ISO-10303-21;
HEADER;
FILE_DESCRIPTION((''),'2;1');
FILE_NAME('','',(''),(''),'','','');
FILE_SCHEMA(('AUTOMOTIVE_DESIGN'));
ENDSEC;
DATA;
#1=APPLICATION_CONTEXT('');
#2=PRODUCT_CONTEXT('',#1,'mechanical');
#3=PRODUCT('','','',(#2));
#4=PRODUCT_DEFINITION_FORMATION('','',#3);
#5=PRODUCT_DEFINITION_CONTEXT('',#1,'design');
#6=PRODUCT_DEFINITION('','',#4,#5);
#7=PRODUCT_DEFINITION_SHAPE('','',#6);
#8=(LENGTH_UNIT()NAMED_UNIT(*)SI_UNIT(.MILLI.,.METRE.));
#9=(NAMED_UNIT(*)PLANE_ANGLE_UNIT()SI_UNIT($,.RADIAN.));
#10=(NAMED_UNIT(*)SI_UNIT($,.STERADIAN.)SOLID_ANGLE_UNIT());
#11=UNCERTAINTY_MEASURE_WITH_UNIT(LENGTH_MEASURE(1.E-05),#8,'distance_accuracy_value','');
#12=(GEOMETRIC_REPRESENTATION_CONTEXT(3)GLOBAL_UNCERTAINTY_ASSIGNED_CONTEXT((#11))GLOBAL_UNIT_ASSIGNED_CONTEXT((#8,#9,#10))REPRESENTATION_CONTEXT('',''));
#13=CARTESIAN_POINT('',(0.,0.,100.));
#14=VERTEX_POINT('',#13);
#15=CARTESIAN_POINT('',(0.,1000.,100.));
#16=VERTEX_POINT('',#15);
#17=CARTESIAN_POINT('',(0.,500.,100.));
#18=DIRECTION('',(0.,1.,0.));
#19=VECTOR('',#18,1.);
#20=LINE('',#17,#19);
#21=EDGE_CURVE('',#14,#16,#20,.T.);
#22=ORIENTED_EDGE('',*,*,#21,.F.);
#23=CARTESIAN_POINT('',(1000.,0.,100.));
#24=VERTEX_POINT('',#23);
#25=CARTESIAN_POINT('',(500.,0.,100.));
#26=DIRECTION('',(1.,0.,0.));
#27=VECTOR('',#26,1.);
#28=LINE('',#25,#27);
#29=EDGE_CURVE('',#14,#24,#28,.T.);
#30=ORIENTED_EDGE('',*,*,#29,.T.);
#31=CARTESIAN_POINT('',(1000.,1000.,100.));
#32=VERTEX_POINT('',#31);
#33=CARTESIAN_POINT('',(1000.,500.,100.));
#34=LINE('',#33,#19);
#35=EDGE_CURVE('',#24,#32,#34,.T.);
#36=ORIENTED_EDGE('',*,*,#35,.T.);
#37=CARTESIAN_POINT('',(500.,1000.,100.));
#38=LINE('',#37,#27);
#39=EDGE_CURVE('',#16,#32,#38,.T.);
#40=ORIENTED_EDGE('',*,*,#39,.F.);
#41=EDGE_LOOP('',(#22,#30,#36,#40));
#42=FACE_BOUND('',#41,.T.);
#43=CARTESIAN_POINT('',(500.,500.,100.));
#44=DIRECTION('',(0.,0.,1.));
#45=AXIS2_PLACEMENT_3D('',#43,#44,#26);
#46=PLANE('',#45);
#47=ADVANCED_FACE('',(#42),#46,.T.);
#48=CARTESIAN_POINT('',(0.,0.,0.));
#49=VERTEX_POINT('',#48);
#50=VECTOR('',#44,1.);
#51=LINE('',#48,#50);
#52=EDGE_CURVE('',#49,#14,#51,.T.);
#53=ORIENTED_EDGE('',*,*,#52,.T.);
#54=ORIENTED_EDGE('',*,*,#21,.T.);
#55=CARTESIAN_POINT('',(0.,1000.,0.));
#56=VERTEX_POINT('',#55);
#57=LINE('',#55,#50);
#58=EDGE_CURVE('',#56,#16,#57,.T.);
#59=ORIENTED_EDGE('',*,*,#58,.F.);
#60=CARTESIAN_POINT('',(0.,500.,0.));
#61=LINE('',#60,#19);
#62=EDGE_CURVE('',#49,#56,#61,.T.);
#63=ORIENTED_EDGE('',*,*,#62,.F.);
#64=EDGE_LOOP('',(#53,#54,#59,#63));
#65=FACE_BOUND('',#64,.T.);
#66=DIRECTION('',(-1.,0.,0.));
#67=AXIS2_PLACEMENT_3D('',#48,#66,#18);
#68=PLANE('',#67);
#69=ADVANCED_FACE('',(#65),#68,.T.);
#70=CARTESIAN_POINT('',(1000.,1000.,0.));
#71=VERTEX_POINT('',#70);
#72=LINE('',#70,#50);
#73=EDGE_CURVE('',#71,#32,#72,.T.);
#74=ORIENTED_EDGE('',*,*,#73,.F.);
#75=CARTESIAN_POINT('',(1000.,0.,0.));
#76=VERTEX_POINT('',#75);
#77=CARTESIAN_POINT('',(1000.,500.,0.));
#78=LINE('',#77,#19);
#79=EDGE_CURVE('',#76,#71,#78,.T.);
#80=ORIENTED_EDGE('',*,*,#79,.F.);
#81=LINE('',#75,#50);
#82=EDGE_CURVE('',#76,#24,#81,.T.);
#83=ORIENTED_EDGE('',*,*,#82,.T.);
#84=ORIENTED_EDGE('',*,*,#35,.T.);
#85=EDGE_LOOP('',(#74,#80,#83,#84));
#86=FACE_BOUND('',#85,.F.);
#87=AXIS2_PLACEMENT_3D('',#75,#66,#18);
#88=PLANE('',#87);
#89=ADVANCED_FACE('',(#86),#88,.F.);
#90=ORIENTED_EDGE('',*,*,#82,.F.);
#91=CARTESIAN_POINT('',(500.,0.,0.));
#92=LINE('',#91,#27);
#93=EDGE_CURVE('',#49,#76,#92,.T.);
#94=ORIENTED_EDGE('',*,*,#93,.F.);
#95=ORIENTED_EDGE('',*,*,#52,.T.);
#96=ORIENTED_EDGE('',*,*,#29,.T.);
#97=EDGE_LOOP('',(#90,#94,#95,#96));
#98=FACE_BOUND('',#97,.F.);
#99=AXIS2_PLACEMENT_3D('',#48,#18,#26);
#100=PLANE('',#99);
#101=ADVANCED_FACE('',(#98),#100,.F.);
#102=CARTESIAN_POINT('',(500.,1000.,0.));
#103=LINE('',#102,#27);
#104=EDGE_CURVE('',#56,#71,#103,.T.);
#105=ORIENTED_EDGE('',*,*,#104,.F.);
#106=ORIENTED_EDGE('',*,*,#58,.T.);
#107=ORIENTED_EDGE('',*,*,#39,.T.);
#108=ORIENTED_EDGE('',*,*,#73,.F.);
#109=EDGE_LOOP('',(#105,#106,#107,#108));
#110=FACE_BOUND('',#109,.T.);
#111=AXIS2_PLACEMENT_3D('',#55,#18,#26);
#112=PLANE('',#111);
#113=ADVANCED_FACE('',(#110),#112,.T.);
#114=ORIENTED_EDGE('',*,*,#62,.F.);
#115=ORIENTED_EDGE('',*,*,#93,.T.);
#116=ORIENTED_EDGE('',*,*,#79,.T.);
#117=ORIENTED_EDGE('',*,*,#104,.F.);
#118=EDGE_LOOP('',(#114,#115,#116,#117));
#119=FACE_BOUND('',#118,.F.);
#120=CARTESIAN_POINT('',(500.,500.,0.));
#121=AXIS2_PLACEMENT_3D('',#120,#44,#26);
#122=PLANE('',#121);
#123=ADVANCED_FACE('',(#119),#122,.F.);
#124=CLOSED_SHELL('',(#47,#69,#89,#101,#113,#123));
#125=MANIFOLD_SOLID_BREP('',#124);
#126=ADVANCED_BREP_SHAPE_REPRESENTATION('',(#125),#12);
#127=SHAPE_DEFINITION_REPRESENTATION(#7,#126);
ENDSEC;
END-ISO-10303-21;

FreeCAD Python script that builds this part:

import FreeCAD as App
import Part
import Sketcher

V = App.Vector


def add_polygon(sketch, points):
    """Adds a closed chain of lines whose ends are joined by coincident constraints."""
    first, n = sketch.GeometryCount, len(points)
    for a, b in zip(points, points[1:] + points[:1]):
        sketch.addGeometry(Part.LineSegment(App.Vector(*a, 0), App.Vector(*b, 0)), False)
    for i in range(n):
        sketch.addConstraint(Sketcher.Constraint("Coincident", first + i, 2, first + (i + 1) % n, 1))

doc = App.newDocument("Part")
params = doc.addObject("Spreadsheet::Sheet", "Params")
for row, (alias, value) in enumerate([
    ("sketch1_width", "1000 mm"),
    ("pad1_length", "100 mm"),
], start=1):
    params.set(f"A{row}", alias)
    params.set(f"B{row}", "=" + value)
    params.setAlias(f"B{row}", alias)

body = doc.addObject("PartDesign::Body", "Body")

# Sketch on XY plane
sketch1 = body.newObject("Sketcher::SketchObject", "Sketch")
sketch1.AttachmentSupport = (doc.getObject("XY_Plane"), [""])
sketch1.MapMode = "FlatFace"
add_polygon(sketch1, [(0, 1000), (0, 0), (1000, 0), (1000, 1000)])  # lines 0-3
sketch1.addConstraint(Sketcher.Constraint("Vertical", 0))
sketch1.addConstraint(Sketcher.Constraint("Horizontal", 1))
sketch1.addConstraint(Sketcher.Constraint("Vertical", 2))
sketch1.addConstraint(Sketcher.Constraint("Horizontal", 3))
sketch1.addConstraint(Sketcher.Constraint("Coincident", 0, 2, -1, 1))
sketch1.addConstraint(Sketcher.Constraint("Equal", 3, 0))
sketch1.addConstraint(Sketcher.Constraint("DistanceX", 1, 1, 1, 2, 1000.0))
sketch1.setExpression("Constraints[10]", "Params.sketch1_width")
pad1 = body.newObject("PartDesign::Pad", "Pad")
pad1.Profile = sketch1
pad1.setExpression("Length", "Params.pad1_length")

doc.recompute()
